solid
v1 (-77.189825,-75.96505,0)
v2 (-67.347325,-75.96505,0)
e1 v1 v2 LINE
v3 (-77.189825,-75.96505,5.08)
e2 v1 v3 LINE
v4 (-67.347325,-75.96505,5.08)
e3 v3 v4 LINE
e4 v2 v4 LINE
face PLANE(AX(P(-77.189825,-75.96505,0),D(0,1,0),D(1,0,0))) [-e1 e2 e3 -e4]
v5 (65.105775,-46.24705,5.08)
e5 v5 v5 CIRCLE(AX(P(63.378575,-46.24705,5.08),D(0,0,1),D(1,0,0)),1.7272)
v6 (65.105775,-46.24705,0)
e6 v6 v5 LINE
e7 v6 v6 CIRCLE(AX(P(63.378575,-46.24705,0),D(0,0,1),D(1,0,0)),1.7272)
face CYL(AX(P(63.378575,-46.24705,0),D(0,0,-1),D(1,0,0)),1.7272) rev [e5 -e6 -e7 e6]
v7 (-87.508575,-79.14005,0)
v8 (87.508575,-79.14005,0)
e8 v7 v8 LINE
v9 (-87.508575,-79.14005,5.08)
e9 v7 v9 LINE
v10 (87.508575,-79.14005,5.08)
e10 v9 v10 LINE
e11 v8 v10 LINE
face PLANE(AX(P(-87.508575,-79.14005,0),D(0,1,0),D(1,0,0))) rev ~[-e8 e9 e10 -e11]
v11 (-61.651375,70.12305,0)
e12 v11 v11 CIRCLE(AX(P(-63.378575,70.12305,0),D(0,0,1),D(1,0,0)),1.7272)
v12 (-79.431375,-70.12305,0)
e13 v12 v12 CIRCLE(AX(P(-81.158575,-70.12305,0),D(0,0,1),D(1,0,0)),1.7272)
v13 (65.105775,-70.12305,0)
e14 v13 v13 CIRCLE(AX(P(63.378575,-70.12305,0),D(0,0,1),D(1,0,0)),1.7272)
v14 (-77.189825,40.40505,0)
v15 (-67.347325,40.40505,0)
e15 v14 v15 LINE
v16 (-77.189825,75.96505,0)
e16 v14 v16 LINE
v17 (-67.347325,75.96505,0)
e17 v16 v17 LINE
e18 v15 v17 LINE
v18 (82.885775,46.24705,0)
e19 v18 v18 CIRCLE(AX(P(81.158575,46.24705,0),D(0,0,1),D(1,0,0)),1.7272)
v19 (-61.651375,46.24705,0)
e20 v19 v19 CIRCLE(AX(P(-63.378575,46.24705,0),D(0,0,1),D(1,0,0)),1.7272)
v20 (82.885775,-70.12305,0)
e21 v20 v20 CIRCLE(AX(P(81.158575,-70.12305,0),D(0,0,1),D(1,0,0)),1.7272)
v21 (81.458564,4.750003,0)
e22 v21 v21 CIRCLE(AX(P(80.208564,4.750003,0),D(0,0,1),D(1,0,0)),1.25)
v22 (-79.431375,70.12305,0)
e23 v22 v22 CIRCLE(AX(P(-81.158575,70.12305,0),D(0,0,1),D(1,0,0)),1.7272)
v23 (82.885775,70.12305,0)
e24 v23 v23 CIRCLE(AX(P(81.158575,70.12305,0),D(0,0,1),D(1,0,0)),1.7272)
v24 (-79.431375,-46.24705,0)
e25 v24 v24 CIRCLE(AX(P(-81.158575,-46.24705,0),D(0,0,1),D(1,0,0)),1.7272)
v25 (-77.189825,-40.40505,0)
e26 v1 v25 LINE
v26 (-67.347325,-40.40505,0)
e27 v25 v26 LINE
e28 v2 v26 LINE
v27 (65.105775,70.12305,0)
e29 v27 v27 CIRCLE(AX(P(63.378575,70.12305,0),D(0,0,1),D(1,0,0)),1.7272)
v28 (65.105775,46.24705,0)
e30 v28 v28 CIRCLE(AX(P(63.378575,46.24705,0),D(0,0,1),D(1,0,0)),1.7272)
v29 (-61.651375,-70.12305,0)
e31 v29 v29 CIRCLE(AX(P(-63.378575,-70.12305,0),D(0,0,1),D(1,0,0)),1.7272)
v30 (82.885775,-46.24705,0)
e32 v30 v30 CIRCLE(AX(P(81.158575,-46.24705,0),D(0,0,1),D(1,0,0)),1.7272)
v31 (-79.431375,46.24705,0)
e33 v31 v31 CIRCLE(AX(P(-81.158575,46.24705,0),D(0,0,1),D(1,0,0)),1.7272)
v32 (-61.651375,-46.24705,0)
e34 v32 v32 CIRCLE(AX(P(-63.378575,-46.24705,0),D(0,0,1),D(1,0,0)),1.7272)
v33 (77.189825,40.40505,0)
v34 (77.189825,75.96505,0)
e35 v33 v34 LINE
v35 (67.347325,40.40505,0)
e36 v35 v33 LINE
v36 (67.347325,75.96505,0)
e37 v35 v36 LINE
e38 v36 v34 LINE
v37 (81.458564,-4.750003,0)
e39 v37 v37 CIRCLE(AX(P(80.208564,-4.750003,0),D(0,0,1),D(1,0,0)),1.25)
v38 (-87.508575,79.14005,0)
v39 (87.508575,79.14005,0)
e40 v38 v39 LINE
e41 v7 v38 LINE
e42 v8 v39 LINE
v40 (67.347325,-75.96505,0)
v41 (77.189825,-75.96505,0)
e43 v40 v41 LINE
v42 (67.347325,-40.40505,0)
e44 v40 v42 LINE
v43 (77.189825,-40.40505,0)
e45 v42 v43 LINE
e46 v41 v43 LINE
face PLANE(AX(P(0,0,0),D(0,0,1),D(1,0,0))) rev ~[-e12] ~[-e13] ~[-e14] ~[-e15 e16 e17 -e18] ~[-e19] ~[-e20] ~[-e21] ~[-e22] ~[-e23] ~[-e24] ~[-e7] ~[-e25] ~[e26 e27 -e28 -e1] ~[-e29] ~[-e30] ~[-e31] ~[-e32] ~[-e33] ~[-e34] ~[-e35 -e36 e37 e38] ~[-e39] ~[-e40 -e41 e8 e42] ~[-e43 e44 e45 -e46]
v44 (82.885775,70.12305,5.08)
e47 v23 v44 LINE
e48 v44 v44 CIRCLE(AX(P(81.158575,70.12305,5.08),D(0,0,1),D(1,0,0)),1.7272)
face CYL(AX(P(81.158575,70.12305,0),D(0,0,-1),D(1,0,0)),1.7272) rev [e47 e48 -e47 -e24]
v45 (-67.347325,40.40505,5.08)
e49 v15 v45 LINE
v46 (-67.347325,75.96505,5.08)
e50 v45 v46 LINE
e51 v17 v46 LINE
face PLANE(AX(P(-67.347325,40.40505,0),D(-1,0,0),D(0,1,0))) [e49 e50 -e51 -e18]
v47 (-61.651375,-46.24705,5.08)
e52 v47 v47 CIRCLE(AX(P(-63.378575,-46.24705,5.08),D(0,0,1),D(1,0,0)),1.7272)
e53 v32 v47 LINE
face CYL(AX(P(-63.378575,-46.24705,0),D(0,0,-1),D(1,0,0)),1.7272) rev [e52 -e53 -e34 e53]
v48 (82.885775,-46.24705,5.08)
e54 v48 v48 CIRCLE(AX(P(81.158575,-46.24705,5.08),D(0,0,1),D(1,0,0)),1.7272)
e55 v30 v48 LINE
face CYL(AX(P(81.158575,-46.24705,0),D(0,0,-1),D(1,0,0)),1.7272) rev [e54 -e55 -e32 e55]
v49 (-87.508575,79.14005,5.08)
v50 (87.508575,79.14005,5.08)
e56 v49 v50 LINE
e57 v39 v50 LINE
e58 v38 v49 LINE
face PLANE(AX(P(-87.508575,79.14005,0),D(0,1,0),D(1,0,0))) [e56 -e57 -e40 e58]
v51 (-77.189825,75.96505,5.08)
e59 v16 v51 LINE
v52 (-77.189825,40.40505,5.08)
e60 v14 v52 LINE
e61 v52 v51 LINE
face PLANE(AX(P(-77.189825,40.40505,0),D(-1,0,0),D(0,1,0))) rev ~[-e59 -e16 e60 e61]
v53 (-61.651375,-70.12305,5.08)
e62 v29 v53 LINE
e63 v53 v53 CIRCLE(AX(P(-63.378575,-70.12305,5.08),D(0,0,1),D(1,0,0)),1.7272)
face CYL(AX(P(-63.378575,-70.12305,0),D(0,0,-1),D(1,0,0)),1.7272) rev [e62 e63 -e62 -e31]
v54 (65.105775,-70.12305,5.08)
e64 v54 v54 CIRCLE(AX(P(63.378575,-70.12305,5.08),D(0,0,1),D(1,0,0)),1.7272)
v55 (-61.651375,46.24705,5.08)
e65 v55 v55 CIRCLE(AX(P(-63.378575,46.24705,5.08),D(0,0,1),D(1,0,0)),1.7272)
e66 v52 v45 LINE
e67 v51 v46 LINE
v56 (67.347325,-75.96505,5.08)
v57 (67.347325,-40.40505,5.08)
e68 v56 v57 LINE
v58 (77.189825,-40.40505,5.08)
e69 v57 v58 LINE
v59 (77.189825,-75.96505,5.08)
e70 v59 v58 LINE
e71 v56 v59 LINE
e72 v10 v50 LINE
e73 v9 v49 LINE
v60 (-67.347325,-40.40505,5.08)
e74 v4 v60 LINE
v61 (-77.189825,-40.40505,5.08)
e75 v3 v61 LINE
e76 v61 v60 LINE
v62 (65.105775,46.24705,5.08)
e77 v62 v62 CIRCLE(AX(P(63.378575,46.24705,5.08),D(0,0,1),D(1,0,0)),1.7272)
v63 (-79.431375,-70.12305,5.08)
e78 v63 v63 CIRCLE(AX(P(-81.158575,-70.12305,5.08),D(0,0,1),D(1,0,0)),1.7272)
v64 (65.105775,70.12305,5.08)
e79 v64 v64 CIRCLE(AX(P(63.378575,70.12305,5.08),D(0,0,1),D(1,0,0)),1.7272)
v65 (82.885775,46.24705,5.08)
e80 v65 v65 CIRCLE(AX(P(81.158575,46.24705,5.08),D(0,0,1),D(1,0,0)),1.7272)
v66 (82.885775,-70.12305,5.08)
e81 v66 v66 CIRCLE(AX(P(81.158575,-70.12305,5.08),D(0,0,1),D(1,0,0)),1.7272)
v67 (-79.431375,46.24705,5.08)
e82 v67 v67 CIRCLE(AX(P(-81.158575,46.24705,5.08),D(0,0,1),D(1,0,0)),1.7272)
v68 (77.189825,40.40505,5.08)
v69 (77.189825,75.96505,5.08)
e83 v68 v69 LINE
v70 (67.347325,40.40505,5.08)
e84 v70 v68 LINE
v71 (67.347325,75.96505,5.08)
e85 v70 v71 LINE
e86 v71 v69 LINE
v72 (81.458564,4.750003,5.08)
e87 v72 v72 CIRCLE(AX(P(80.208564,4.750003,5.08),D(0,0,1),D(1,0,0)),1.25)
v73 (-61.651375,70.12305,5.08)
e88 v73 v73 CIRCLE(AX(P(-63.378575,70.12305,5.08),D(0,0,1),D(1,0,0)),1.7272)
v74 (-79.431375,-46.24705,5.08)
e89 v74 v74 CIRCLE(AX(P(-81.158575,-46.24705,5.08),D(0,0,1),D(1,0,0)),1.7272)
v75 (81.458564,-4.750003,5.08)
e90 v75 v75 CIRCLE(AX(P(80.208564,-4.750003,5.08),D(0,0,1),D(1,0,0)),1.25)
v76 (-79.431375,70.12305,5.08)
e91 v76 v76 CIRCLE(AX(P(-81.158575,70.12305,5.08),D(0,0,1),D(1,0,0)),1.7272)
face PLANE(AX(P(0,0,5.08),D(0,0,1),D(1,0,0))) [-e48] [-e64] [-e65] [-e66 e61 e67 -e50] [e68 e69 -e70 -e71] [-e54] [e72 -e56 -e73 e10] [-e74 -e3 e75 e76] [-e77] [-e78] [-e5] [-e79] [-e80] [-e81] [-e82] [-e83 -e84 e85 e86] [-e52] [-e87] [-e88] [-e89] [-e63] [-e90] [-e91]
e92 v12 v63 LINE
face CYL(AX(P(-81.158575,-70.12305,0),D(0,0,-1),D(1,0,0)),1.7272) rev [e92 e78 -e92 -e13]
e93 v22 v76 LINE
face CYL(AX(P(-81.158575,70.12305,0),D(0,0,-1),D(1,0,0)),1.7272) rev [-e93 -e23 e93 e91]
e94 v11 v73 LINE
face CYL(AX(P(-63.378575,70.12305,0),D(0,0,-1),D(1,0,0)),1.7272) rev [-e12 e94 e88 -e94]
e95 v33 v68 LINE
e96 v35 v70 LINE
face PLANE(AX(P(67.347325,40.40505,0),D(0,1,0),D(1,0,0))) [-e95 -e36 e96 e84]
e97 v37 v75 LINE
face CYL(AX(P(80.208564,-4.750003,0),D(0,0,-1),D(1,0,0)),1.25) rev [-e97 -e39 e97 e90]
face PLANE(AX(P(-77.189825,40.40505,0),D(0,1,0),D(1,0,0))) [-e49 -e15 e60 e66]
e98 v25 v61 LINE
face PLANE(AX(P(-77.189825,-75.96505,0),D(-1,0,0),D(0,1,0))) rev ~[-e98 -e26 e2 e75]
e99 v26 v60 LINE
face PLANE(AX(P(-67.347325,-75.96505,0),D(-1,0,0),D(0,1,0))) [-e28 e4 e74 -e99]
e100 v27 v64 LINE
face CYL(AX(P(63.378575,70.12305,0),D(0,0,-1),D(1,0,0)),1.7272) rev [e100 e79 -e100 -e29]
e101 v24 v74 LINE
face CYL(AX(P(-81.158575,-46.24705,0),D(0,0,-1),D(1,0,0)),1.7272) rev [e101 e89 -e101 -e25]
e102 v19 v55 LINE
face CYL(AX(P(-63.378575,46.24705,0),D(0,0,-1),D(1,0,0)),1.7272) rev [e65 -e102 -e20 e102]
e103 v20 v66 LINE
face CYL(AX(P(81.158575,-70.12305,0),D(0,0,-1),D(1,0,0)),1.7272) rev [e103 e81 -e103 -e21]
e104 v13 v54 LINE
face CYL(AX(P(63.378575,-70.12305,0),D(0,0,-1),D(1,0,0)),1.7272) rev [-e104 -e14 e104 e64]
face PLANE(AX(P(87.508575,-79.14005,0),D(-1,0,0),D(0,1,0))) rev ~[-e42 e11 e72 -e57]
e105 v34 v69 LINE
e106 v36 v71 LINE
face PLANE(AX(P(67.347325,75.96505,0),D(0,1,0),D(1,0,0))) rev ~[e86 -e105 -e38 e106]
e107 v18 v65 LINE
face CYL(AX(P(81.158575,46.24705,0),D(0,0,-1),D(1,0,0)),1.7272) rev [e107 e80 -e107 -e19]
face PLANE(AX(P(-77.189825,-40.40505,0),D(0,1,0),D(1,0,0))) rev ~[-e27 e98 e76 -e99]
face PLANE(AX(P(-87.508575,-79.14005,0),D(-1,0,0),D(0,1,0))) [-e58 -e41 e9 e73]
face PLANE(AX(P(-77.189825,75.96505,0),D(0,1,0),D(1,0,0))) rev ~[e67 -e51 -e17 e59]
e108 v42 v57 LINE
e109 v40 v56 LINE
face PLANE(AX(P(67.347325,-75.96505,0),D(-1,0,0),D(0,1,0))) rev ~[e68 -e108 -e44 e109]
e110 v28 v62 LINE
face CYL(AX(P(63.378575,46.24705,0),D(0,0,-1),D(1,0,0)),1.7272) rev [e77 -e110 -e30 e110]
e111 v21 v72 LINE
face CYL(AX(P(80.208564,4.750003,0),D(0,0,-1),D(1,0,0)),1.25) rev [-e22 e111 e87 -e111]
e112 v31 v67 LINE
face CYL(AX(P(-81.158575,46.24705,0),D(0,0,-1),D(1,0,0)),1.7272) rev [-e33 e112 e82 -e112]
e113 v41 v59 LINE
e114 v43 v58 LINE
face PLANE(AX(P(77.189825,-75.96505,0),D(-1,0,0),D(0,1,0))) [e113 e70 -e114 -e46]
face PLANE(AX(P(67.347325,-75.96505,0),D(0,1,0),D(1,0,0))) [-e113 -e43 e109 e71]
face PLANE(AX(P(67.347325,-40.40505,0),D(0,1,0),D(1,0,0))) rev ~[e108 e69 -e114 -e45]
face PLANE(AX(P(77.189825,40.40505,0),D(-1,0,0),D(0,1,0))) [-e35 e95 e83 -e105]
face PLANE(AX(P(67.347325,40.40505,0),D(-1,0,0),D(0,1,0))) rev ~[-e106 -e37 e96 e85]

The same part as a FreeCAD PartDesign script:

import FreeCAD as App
import Part
import Sketcher
Q = App.Units.Quantity

doc = App.newDocument("Part")
body = doc.addObject("PartDesign::Body", "Body")

# Sketch on XY plane
sketch1 = body.newObject("Sketcher::SketchObject", "Sketch")
sketch1.AttachmentSupport = (doc.getObject("XY_Plane"), [""])
sketch1.MapMode = "FlatFace"
sketch1.addGeometry(Part.LineSegment(App.Vector(-87.508575, 79.14005, 0), App.Vector(-87.508575, -79.14005, 0)), False)
sketch1.addGeometry(Part.LineSegment(App.Vector(-87.508575, -79.14005, 0), App.Vector(87.508575, -79.14005, 0)), False)
sketch1.addGeometry(Part.LineSegment(App.Vector(87.508575, -79.14005, 0), App.Vector(87.508575, 79.14005, 0)), False)
sketch1.addGeometry(Part.LineSegment(App.Vector(87.508575, 79.14005, 0), App.Vector(-87.508575, 79.14005, 0)), False)
sketch1.addGeometry(Part.Circle(App.Vector(-81.158575, -70.12305, 0), App.Vector(0, 0, 1), 1.7272), False)
sketch1.addGeometry(Part.Circle(App.Vector(-63.378575, -70.12305, 0), App.Vector(0, 0, 1), 1.7272), False)
sketch1.addGeometry(Part.LineSegment(App.Vector(-67.347325, -75.96505, 0), App.Vector(-77.189825, -75.96505, 0)), False)
sketch1.addGeometry(Part.LineSegment(App.Vector(-77.189825, -75.96505, 0), App.Vector(-77.189825, -40.40505, 0)), False)
sketch1.addGeometry(Part.LineSegment(App.Vector(-77.189825, -40.40505, 0), App.Vector(-67.347325, -40.40505, 0)), False)
sketch1.addGeometry(Part.LineSegment(App.Vector(-67.347325, -40.40505, 0), App.Vector(-67.347325, -75.96505, 0)), False)
sketch1.addGeometry(Part.Circle(App.Vector(-81.158575, -46.24705, 0), App.Vector(0, 0, 1), 1.7272), False)
sketch1.addGeometry(Part.Circle(App.Vector(-63.378575, -46.24705, 0), App.Vector(0, 0, 1), 1.7272), False)
sketch1.addGeometry(Part.Circle(App.Vector(63.378575, -70.12305, 0), App.Vector(0, 0, 1), 1.7272), False)
sketch1.addGeometry(Part.Circle(App.Vector(81.158575, -70.12305, 0), App.Vector(0, 0, 1), 1.7272), False)
sketch1.addGeometry(Part.LineSegment(App.Vector(77.189825, -75.96505, 0), App.Vector(67.347325, -75.96505, 0)), False)
sketch1.addGeometry(Part.LineSegment(App.Vector(67.347325, -75.96505, 0), App.Vector(67.347325, -40.40505, 0)), False)
sketch1.addGeometry(Part.LineSegment(App.Vector(67.347325, -40.40505, 0), App.Vector(77.189825, -40.40505, 0)), False)
sketch1.addGeometry(Part.LineSegment(App.Vector(77.189825, -40.40505, 0), App.Vector(77.189825, -75.96505, 0)), False)
sketch1.addGeometry(Part.Circle(App.Vector(63.378575, -46.24705, 0), App.Vector(0, 0, 1), 1.7272), False)
sketch1.addGeometry(Part.Circle(App.Vector(81.158575, -46.24705, 0), App.Vector(0, 0, 1), 1.7272), False)
sketch1.addGeometry(Part.Circle(App.Vector(80.208564, -4.750003, 0), App.Vector(0, 0, 1), 1.25), False)
sketch1.addGeometry(Part.Circle(App.Vector(-81.158575, 46.24705, 0), App.Vector(0, 0, 1), 1.7272), False)
sketch1.addGeometry(Part.Circle(App.Vector(-63.378575, 46.24705, 0), App.Vector(0, 0, 1), 1.7272), False)
sketch1.addGeometry(Part.LineSegment(App.Vector(-67.347325, 40.40505, 0), App.Vector(-77.189825, 40.40505, 0)), False)
sketch1.addGeometry(Part.LineSegment(App.Vector(-77.189825, 40.40505, 0), App.Vector(-77.189825, 75.96505, 0)), False)
sketch1.addGeometry(Part.LineSegment(App.Vector(-77.189825, 75.96505, 0), App.Vector(-67.347325, 75.96505, 0)), False)
sketch1.addGeometry(Part.LineSegment(App.Vector(-67.347325, 75.96505, 0), App.Vector(-67.347325, 40.40505, 0)), False)
sketch1.addGeometry(Part.Circle(App.Vector(-81.158575, 70.12305, 0), App.Vector(0, 0, 1), 1.7272), False)
sketch1.addGeometry(Part.Circle(App.Vector(-63.378575, 70.12305, 0), App.Vector(0, 0, 1), 1.7272), False)
sketch1.addGeometry(Part.Circle(App.Vector(80.208564, 4.750003, 0), App.Vector(0, 0, 1), 1.25), False)
sketch1.addGeometry(Part.Circle(App.Vector(63.378575, 46.24705, 0), App.Vector(0, 0, 1), 1.7272), False)
sketch1.addGeometry(Part.Circle(App.Vector(81.158575, 46.24705, 0), App.Vector(0, 0, 1), 1.7272), False)
sketch1.addGeometry(Part.LineSegment(App.Vector(77.189825, 40.40505, 0), App.Vector(67.347325, 40.40505, 0)), False)
sketch1.addGeometry(Part.LineSegment(App.Vector(67.347325, 40.40505, 0), App.Vector(67.347325, 75.96505, 0)), False)
sketch1.addGeometry(Part.LineSegment(App.Vector(67.347325, 75.96505, 0), App.Vector(77.189825, 75.96505, 0)), False)
sketch1.addGeometry(Part.LineSegment(App.Vector(77.189825, 75.96505, 0), App.Vector(77.189825, 40.40505, 0)), False)
sketch1.addGeometry(Part.Circle(App.Vector(63.378575, 70.12305, 0), App.Vector(0, 0, 1), 1.7272), False)
sketch1.addGeometry(Part.Circle(App.Vector(81.158575, 70.12305, 0), App.Vector(0, 0, 1), 1.7272), False)
sketch1.addConstraint(Sketcher.Constraint("Coincident", 0, 2, 1, 1))
sketch1.addConstraint(Sketcher.Constraint("Coincident", 1, 2, 2, 1))
sketch1.addConstraint(Sketcher.Constraint("Coincident", 2, 2, 3, 1))
sketch1.addConstraint(Sketcher.Constraint("Coincident", 3, 2, 0, 1))
sketch1.addConstraint(Sketcher.Constraint("Coincident", 6, 2, 7, 1))
sketch1.addConstraint(Sketcher.Constraint("Coincident", 7, 2, 8, 1))
sketch1.addConstraint(Sketcher.Constraint("Coincident", 8, 2, 9, 1))
sketch1.addConstraint(Sketcher.Constraint("Coincident", 9, 2, 6, 1))
sketch1.addConstraint(Sketcher.Constraint("Coincident", 14, 2, 15, 1))
sketch1.addConstraint(Sketcher.Constraint("Coincident", 15, 2, 16, 1))
sketch1.addConstraint(Sketcher.Constraint("Coincident", 16, 2, 17, 1))
sketch1.addConstraint(Sketcher.Constraint("Coincident", 17, 2, 14, 1))
sketch1.addConstraint(Sketcher.Constraint("Coincident", 23, 2, 24, 1))
sketch1.addConstraint(Sketcher.Constraint("Coincident", 24, 2, 25, 1))
sketch1.addConstraint(Sketcher.Constraint("Coincident", 25, 2, 26, 1))
sketch1.addConstraint(Sketcher.Constraint("Coincident", 26, 2, 23, 1))
sketch1.addConstraint(Sketcher.Constraint("Coincident", 32, 2, 33, 1))
sketch1.addConstraint(Sketcher.Constraint("Coincident", 33, 2, 34, 1))
sketch1.addConstraint(Sketcher.Constraint("Coincident", 34, 2, 35, 1))
sketch1.addConstraint(Sketcher.Constraint("Coincident", 35, 2, 32, 1))
sketch1.addConstraint(Sketcher.Constraint("Vertical", 0))
sketch1.addConstraint(Sketcher.Constraint("Horizontal", 1))
sketch1.addConstraint(Sketcher.Constraint("Vertical", 2))
sketch1.addConstraint(Sketcher.Constraint("Horizontal", 3))
sketch1.addConstraint(Sketcher.Constraint("Horizontal", 6))
sketch1.addConstraint(Sketcher.Constraint("Vertical", 7))
sketch1.addConstraint(Sketcher.Constraint("Horizontal", 8))
sketch1.addConstraint(Sketcher.Constraint("Vertical", 9))
sketch1.addConstraint(Sketcher.Constraint("Horizontal", 14))
sketch1.addConstraint(Sketcher.Constraint("Vertical", 15))
sketch1.addConstraint(Sketcher.Constraint("Horizontal", 16))
sketch1.addConstraint(Sketcher.Constraint("Vertical", 17))
sketch1.addConstraint(Sketcher.Constraint("Horizontal", 23))
sketch1.addConstraint(Sketcher.Constraint("Vertical", 24))
sketch1.addConstraint(Sketcher.Constraint("Horizontal", 25))
sketch1.addConstraint(Sketcher.Constraint("Vertical", 26))
sketch1.addConstraint(Sketcher.Constraint("Horizontal", 32))
sketch1.addConstraint(Sketcher.Constraint("Vertical", 33))
sketch1.addConstraint(Sketcher.Constraint("Horizontal", 34))
sketch1.addConstraint(Sketcher.Constraint("Vertical", 35))
sketch1.addConstraint(Sketcher.Constraint("Equal", 4, 5))
sketch1.addConstraint(Sketcher.Constraint("Equal", 5, 10))
sketch1.addConstraint(Sketcher.Constraint("Equal", 10, 11))
sketch1.addConstraint(Sketcher.Constraint("Equal", 11, 12))
sketch1.addConstraint(Sketcher.Constraint("Equal", 12, 13))
sketch1.addConstraint(Sketcher.Constraint("Equal", 13, 18))
sketch1.addConstraint(Sketcher.Constraint("Equal", 18, 19))
sketch1.addConstraint(Sketcher.Constraint("Equal", 19, 21))
sketch1.addConstraint(Sketcher.Constraint("Equal", 21, 22))
sketch1.addConstraint(Sketcher.Constraint("Equal", 22, 27))
sketch1.addConstraint(Sketcher.Constraint("Equal", 27, 28))
sketch1.addConstraint(Sketcher.Constraint("Equal", 20, 29))
sketch1.addConstraint(Sketcher.Constraint("Equal", 28, 30))
sketch1.addConstraint(Sketcher.Constraint("Equal", 30, 31))
sketch1.addConstraint(Sketcher.Constraint("Equal", 31, 36))
sketch1.addConstraint(Sketcher.Constraint("Equal", 36, 37))
sketch1.addConstraint(Sketcher.Constraint("Symmetric", 19, 3, 21, 3, -1, 1))
sketch1.addConstraint(Sketcher.Constraint("Symmetric", 18, 3, 22, 3, -1, 1))
sketch1.addConstraint(Sketcher.Constraint("Symmetric", 13, 3, 27, 3, -1, 1))
sketch1.addConstraint(Sketcher.Constraint("Symmetric", 12, 3, 28, 3, -1, 1))
sketch1.addConstraint(Sketcher.Constraint("Symmetric", 11, 3, 30, 3, -1, 1))
sketch1.addConstraint(Sketcher.Constraint("Symmetric", 10, 3, 31, 3, -1, 1))
sketch1.addConstraint(Sketcher.Constraint("Symmetric", 5, 3, 36, 3, -1, 1))
sketch1.addConstraint(Sketcher.Constraint("Symmetric", 4, 3, 37, 3, -1, 1))
sketch1.addConstraint(Sketcher.Constraint("Symmetric", 0, 2, 2, 2, -1, 1))
sketch1.addConstraint(Sketcher.Constraint("Symmetric", 16, 2, 23, 2, -1, 1))
sketch1.addConstraint(Sketcher.Constraint("Symmetric", 14, 2, 25, 2, -1, 1))
sketch1.addConstraint(Sketcher.Constraint("Symmetric", 8, 2, 32, 2, -1, 1))
sketch1.addConstraint(Sketcher.Constraint("Symmetric", 6, 2, 34, 2, -1, 1))
sketch1.addConstraint(Sketcher.Constraint("Symmetric", 5, 3, 12, 3, -2))
sketch1.addConstraint(Sketcher.Constraint("Symmetric", 4, 3, 13, 3, -2))
sketch1.addConstraint(Sketcher.Constraint("Symmetric", 11, 3, 18, 3, -2))
sketch1.addConstraint(Sketcher.Constraint("Symmetric", 10, 3, 19, 3, -2))
sketch1.addConstraint(Sketcher.Constraint("Symmetric", 9, 2, 14, 2, -2))
sketch1.addConstraint(Sketcher.Constraint("Symmetric", 7, 2, 16, 2, -2))
sketch1.addConstraint(Sketcher.Constraint("Symmetric", 20, 3, 29, 3, -1))
sketch1.addConstraint(Sketcher.Constraint("Horizontal", 4, 3, 5, 3))
sketch1.addConstraint(Sketcher.Constraint("Horizontal", 10, 3, 11, 3))
sketch1.addConstraint(Sketcher.Constraint("Vertical", 4, 3, 10, 3))
sketch1.addConstraint(Sketcher.Constraint("Vertical", 5, 3, 11, 3))
sketch1.addConstraint(Sketcher.Constraint("Diameter", 4, Q("0.136 in")))
sketch1.addConstraint(Sketcher.Constraint("DistanceY", 7, 1, 7, 2, Q("1.4 in")))
sketch1.addConstraint(Sketcher.Constraint("DistanceX", 4, 3, 5, 3, Q("0.7 in")))
sketch1.addConstraint(Sketcher.Constraint("Diameter", 20, 2.5))
sketch1.addConstraint(Sketcher.Constraint("DistanceY", 4, 3, 10, 3, Q("0.94 in")))
sketch1.addConstraint(Sketcher.Constraint("DistanceX", 0, 2, 4, 3, Q("0.25 in")))
sketch1.addConstraint(Sketcher.Constraint("DistanceY", 6, 2, 4, 3, Q("0.23 in")))
sketch1.addConstraint(Sketcher.Constraint("DistanceX", 6, 2, 6, 1, Q("0.3875 in")))
sketch1.addConstraint(Sketcher.Constraint("DistanceY", 0, 2, 0, 1, Q("6.2315 in")))
sketch1.addConstraint(Sketcher.Constraint("DistanceY", 0, 2, 4, 3, Q("0.355 in")))
sketch1.addConstraint(Sketcher.Constraint("DistanceX", 4, 3, 6, 2, Q("0.15625 in")))
sketch1.addConstraint(Sketcher.Constraint("DistanceX", 1, 1, 1, 2, 175.01715))
sketch1.addConstraint(Sketcher.Constraint("DistanceX", 20, 3, 19, 3, 0.950011))
sketch1.addConstraint(Sketcher.Constraint("DistanceY", 20, 3, -1, 1, 4.750003))
pad1 = body.newObject("PartDesign::Pad", "Pad")
pad1.Profile = sketch1
pad1.Length = Q("0.2 in")

doc.recompute()
